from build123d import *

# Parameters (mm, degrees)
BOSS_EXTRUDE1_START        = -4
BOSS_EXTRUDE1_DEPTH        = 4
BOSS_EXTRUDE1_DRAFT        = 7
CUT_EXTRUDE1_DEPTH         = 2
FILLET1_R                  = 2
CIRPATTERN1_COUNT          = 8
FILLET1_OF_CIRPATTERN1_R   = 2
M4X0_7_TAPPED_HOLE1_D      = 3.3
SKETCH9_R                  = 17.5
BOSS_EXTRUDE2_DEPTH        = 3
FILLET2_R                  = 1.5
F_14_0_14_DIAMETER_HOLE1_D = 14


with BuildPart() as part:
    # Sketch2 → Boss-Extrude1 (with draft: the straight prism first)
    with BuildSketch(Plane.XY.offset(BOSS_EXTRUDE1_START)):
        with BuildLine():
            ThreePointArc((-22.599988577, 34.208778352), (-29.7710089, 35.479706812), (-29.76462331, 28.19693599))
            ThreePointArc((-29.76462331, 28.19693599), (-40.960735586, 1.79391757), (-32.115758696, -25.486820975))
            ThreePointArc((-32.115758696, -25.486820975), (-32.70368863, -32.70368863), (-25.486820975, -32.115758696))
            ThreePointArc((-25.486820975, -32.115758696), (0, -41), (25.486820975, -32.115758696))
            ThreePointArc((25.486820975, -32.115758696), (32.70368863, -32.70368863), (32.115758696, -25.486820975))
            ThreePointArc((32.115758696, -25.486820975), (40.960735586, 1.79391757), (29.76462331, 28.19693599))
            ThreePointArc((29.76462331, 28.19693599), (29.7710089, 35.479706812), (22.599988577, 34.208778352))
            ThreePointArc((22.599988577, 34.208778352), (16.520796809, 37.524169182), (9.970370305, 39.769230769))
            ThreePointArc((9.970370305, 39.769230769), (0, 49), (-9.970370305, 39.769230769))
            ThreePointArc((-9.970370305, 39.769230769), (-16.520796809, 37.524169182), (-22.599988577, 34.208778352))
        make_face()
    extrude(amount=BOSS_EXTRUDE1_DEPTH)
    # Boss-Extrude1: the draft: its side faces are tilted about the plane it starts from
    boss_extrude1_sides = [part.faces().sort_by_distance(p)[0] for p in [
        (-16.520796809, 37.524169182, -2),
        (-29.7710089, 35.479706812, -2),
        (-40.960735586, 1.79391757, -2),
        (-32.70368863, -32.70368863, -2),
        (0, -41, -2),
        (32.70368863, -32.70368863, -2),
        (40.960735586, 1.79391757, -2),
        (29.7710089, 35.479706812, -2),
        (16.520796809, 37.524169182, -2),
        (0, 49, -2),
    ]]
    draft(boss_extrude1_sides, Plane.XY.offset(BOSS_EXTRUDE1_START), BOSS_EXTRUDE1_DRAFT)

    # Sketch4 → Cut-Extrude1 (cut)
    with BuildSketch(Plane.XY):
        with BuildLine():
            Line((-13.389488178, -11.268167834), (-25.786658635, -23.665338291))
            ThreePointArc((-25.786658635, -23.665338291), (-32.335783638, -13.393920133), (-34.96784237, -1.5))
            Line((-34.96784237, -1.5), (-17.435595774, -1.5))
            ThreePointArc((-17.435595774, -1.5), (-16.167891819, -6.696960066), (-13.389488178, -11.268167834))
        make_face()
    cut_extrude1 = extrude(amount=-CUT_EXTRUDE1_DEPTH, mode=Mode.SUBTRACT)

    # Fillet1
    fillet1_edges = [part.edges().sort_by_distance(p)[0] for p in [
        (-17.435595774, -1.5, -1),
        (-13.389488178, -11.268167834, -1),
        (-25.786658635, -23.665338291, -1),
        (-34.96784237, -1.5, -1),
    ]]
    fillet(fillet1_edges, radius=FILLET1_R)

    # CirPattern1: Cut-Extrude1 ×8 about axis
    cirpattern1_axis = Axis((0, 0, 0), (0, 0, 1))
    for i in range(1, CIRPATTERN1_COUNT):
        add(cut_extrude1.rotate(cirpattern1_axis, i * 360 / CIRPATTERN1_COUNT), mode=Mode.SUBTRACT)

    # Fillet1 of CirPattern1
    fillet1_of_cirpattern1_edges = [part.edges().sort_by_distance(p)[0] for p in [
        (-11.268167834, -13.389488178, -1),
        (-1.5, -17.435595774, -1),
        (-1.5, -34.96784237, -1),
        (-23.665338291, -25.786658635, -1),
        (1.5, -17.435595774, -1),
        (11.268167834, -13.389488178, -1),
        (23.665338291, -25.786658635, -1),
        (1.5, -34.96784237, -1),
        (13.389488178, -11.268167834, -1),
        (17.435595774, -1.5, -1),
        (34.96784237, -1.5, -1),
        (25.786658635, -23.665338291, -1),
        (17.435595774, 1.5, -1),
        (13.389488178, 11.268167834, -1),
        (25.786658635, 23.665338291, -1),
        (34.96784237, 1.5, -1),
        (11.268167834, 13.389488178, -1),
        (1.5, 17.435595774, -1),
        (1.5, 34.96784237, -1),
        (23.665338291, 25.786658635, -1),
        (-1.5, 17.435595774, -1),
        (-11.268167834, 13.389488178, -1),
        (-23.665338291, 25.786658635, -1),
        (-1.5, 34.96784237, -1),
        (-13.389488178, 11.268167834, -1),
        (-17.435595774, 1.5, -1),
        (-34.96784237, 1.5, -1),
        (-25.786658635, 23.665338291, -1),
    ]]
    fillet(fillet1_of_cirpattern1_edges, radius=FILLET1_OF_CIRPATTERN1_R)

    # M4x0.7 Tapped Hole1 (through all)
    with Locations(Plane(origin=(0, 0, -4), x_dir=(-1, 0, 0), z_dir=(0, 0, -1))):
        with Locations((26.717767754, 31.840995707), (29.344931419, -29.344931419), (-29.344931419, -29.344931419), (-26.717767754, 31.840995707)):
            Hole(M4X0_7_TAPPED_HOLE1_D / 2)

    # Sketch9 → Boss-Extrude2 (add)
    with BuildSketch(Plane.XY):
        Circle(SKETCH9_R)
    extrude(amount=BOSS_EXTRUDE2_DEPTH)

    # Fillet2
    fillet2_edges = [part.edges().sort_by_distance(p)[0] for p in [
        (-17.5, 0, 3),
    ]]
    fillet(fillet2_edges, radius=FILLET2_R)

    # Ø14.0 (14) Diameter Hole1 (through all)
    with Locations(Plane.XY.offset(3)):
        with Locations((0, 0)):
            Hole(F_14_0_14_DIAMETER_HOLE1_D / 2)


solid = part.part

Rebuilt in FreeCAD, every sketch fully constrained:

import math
import FreeCAD as App
import Part
import Sketcher

V = App.Vector
Q = App.Units.Quantity


def edges_at(feature, points):
    """Names of the edges that pass closest to the given points."""
    edges = feature.Shape.Edges
    near = lambda p: min(range(len(edges)), key=lambda i: edges[i].distToShape(Part.Vertex(*p))[0])
    return sorted({f"Edge{near(p) + 1}" for p in points})


def faces_at(feature, points):
    """Names of the faces that lie closest to the given points."""
    faces = feature.Shape.Faces
    near = lambda p: min(range(len(faces)), key=lambda i: faces[i].distToShape(Part.Vertex(*p))[0])
    return sorted({f"Face{near(p) + 1}" for p in points})

doc = App.newDocument("Part")
body = doc.addObject("PartDesign::Body", "Body")

# Sketch on XY plane
sketch1 = doc.addObject("Sketcher::SketchObject", "Sketch")
body.addObject(sketch1)
sketch1.AttachmentSupport = (doc.XY_Plane, [""])
sketch1.MapMode = "FlatFace"
sketch1.AttachmentOffset = App.Placement(V(0, 0, -4), App.Rotation())
sketch1.addGeometry([
    Part.ArcOfCircle(Part.Circle(V(-26.7, 31.8, 0), V(0, 0, 1), 4.8), math.radians(30), math.radians(230)),  # 0
    Part.ArcOfCircle(Part.Circle(V(0, 0, 0), V(0, 0, 1), 41), math.radians(137), math.radians(218)),  # 1
    Part.ArcOfCircle(Part.Circle(V(-29.3, -29.3, 0), V(0, 0, 1), 4.8), math.radians(126), math.radians(324)),  # 2
    Part.ArcOfCircle(Part.Circle(V(0, 0, 0), V(0, 0, 1), 41), math.radians(-128), math.radians(-52)),  # 3
    Part.ArcOfCircle(Part.Circle(V(29.3, -29.3, 0), V(0, 0, 1), 4.8), math.radians(-144), math.radians(54)),  # 4
    Part.ArcOfCircle(Part.Circle(V(0, 0, 0), V(0, 0, 1), 41), math.radians(-38), math.radians(43)),  # 5
    Part.ArcOfCircle(Part.Circle(V(26.7, 31.8, 0), V(0, 0, 1), 4.8), math.radians(-50), math.radians(150)),  # 6
    Part.ArcOfCircle(Part.Circle(V(0, 0, 0), V(0, 0, 1), 41), math.radians(56.55), math.radians(75.93)),  # 7
    Part.ArcOfCircle(Part.Circle(V(0, 39, 0), V(0, 0, 1), 10), math.radians(4), math.radians(176)),  # 8
    Part.ArcOfCircle(Part.Circle(V(0, 0, 0), V(0, 0, 1), 41), math.radians(104.07), math.radians(123.45)),  # 9
], False)
sketch1.addConstraint([
    Sketcher.Constraint("Coincident", 0, 2, 1, 1),
    Sketcher.Constraint("Coincident", 1, 2, 2, 1),
    Sketcher.Constraint("Coincident", 2, 2, 3, 1),
    Sketcher.Constraint("Coincident", 3, 2, 4, 1),
    Sketcher.Constraint("Coincident", 4, 2, 5, 1),
    Sketcher.Constraint("Coincident", 5, 2, 6, 1),
    Sketcher.Constraint("Coincident", 6, 2, 7, 1),
    Sketcher.Constraint("Coincident", 7, 2, 8, 1),
    Sketcher.Constraint("Coincident", 8, 2, 9, 1),
    Sketcher.Constraint("Coincident", 9, 2, 0, 1),
    Sketcher.Constraint("Coincident", 1, 3, -1, 1),
    Sketcher.Constraint("Coincident", 3, 3, -1, 1),
    Sketcher.Constraint("Coincident", 5, 3, -1, 1),
    Sketcher.Constraint("Coincident", 7, 3, -1, 1),
    Sketcher.Constraint("Coincident", 9, 3, -1, 1),
    Sketcher.Constraint("Equal", 0, 2),
    Sketcher.Constraint("Equal", 1, 3),
    Sketcher.Constraint("Equal", 2, 4),
    Sketcher.Constraint("Equal", 3, 5),
    Sketcher.Constraint("Equal", 4, 6),
    Sketcher.Constraint("Equal", 5, 7),
    Sketcher.Constraint("Equal", 7, 9),
    Sketcher.Constraint("Symmetric", 2, 3, 4, 3, -2),
    Sketcher.Constraint("Symmetric", 0, 3, 6, 3, -2),
    Sketcher.Constraint("PointOnObject", 8, 3, -2),
    Sketcher.Constraint("Radius", 1, 41.0),
    Sketcher.Constraint("Radius", 8, 10.0),
    Sketcher.Constraint("Radius", 0, 4.75),
    Sketcher.Constraint("DistanceY", -1, 1, 8, 3, 39.0),
    Sketcher.Constraint("DistanceX", 0, 3, 4, 3, 56.062699),
    Sketcher.Constraint("DistanceX", 2, 3, -1, 1, 29.344931),
    Sketcher.Constraint("DistanceY", 2, 3, -1, 1, 29.344931),
    Sketcher.Constraint("DistanceX", -1, 1, 6, 2, 22.599989),
])
pad1 = doc.addObject("PartDesign::Pad", "Pad")
body.addObject(pad1)
pad1.Profile = sketch1
pad1.Length = 4
doc.recompute()

datumplane = doc.addObject("PartDesign::Plane", "DatumPlane")
body.addObject(datumplane)
datumplane.AttachmentSupport = (doc.XY_Plane, [""])
datumplane.MapMode = "FlatFace"
datumplane.AttachmentOffset = App.Placement(V(0, 0, -4), App.Rotation())
draft = doc.addObject("PartDesign::Draft", "Draft")
body.addObject(draft)
draft.Base = (pad1, faces_at(pad1, [
    (-16.521, 37.524, -2),
    (-29.771, 35.48, -2),
    (-40.961, 1.794, -2),
    (-32.704, -32.704, -2),
    (0, -41, -2),
    (32.704, -32.704, -2),
    (40.961, 1.794, -2),
    (29.771, 35.48, -2),
    (16.521, 37.524, -2),
    (0, 49, -2),
]))
draft.NeutralPlane = (datumplane, [""])
draft.Angle = 7
draft.Reversed = False

# Sketch on XY plane
sketch2 = doc.addObject("Sketcher::SketchObject", "Sketch001")
body.addObject(sketch2)
sketch2.AttachmentSupport = (doc.XY_Plane, [""])
sketch2.MapMode = "FlatFace"
sketch2.addGeometry([
    Part.LineSegment(V(-26, -24, 0), V(-13, -11, 0)),
    Part.ArcOfCircle(Part.Circle(V(0, 0, 0), V(0, 0, 1), 18), math.radians(-175), math.radians(-140)),
    Part.LineSegment(V(-17, -2, 0), V(-35, -2, 0)),
    Part.ArcOfCircle(Part.Circle(V(0, 0, 0), V(0, 0, 1), 35), math.radians(-178), math.radians(-137)),
], False)
sketch2.addConstraint([
    Sketcher.Constraint("Coincident", 0, 2, 1, 2),
    Sketcher.Constraint("Coincident", 1, 1, 2, 1),
    Sketcher.Constraint("Coincident", 2, 2, 3, 1),
    Sketcher.Constraint("Coincident", 3, 2, 0, 1),
    Sketcher.Constraint("Horizontal", 2),
    Sketcher.Constraint("Coincident", 1, 3, -1, 1),
    Sketcher.Constraint("Coincident", 3, 3, -1, 1),
    Sketcher.Constraint("Radius", 3, 35.0),
    Sketcher.Constraint("Radius", 1, 17.5),
    Sketcher.Constraint("Angle", 0, Q("45 deg")),
    Sketcher.Constraint("DistanceY", 1, 1, -1, 1, 1.5),
    Sketcher.Constraint("DistanceX", 0, 2, -1, 1, 13.389488),
])
pocket1 = doc.addObject("PartDesign::Pocket", "Pocket")
body.addObject(pocket1)
pocket1.Profile = sketch2
pocket1.Length = 2
doc.recompute()

fillet = doc.addObject("PartDesign::Fillet", "Fillet")
body.addObject(fillet)
fillet.Base = (pocket1, edges_at(pocket1, [
    (-17.436, -1.5, -1),
    (-13.389, -11.268, -1),
    (-25.787, -23.665, -1),
    (-34.968, -1.5, -1),
]))
fillet.Radius = 2
doc.recompute()

polarpattern = doc.addObject("PartDesign::PolarPattern", "PolarPattern")
body.addObject(polarpattern)
polarpattern.Originals = [pocket1]
polarpattern.Axis = (doc.Z_Axis, [""])
polarpattern.Angle = 360
polarpattern.Occurrences = 8
body.Tip = polarpattern
doc.recompute()

fillet2 = doc.addObject("PartDesign::Fillet", "Fillet001")
body.addObject(fillet2)
fillet2.Base = (polarpattern, edges_at(polarpattern, [
    (-11.268, -13.389, -1),
    (-1.5, -17.436, -1),
    (-1.5, -34.968, -1),
    (-23.665, -25.787, -1),
    (1.5, -17.436, -1),
    (11.268, -13.389, -1),
    (23.665, -25.787, -1),
    (1.5, -34.968, -1),
    (13.389, -11.268, -1),
    (17.436, -1.5, -1),
    (34.968, -1.5, -1),
    (25.787, -23.665, -1),
    (17.436, 1.5, -1),
    (13.389, 11.268, -1),
    (25.787, 23.665, -1),
    (34.968, 1.5, -1),
    (11.268, 13.389, -1),
    (1.5, 17.436, -1),
    (1.5, 34.968, -1),
    (23.665, 25.787, -1),
    (-1.5, 17.436, -1),
    (-11.268, 13.389, -1),
    (-23.665, 25.787, -1),
    (-1.5, 34.968, -1),
    (-13.389, 11.268, -1),
    (-17.436, 1.5, -1),
    (-34.968, 1.5, -1),
    (-25.787, 23.665, -1),
]))
fillet2.Radius = 2

# Sketch on XY plane
sketch3 = doc.addObject("Sketcher::SketchObject", "Sketch002")
body.addObject(sketch3)
sketch3.AttachmentSupport = (doc.XY_Plane, [""])
sketch3.MapMode = "FlatFace"
sketch3.AttachmentOffset = App.Placement(V(0, 0, -4), App.Rotation())
sketch3.addGeometry([
    Part.Circle(V(-26.7, 31.8, 0), V(0, 0, 1), 1.6),
    Part.Circle(V(-29.3, -29.3, 0), V(0, 0, 1), 1.6),
    Part.Circle(V(29.3, -29.3, 0), V(0, 0, 1), 1.6),
    Part.Circle(V(26.7, 31.8, 0), V(0, 0, 1), 1.6),
], False)
sketch3.addConstraint([
    Sketcher.Constraint("Equal", 0, 1),
    Sketcher.Constraint("Equal", 1, 2),
    Sketcher.Constraint("Equal", 2, 3),
    Sketcher.Constraint("Symmetric", 1, 3, 2, 3, -2),
    Sketcher.Constraint("Symmetric", 0, 3, 3, 3, -2),
    Sketcher.Constraint("Diameter", 0, 3.3),
    Sketcher.Constraint("DistanceX", 0, 3, 2, 3, 56.062699),
    Sketcher.Constraint("DistanceX", 1, 3, -1, 1, 29.344931),
    Sketcher.Constraint("DistanceY", 1, 3, -1, 1, 29.344931),
    Sketcher.Constraint("DistanceY", -1, 1, 0, 3, 31.840996),
])
doc.recompute()
hole = doc.addObject("PartDesign::Hole", "Hole")
body.addObject(hole)
hole.Profile = sketch3
hole.ThreadType = "None"
hole.Diameter = 3.3
hole.DepthType = "ThroughAll"
hole.Reversed = True

# Sketch on XY plane
sketch4 = doc.addObject("Sketcher::SketchObject", "Sketch003")
body.addObject(sketch4)
sketch4.AttachmentSupport = (doc.XY_Plane, [""])
sketch4.MapMode = "FlatFace"
sketch4.addGeometry(Part.Circle(V(0, 0, 0), V(0, 0, 1), 18), False)
sketch4.addConstraint([
    Sketcher.Constraint("Coincident", 0, 3, -1, 1),
    Sketcher.Constraint("Diameter", 0, 35.0),
])
pad2 = doc.addObject("PartDesign::Pad", "Pad001")
body.addObject(pad2)
pad2.Profile = sketch4
pad2.Length = 3
doc.recompute()

fillet3 = doc.addObject("PartDesign::Fillet", "Fillet002")
body.addObject(fillet3)
fillet3.Base = (pad2, edges_at(pad2, [(-17.5, 0, 3)]))
fillet3.Radius = 1.5

# Sketch on XY plane
sketch5 = doc.addObject("Sketcher::SketchObject", "Sketch004")
body.addObject(sketch5)
sketch5.AttachmentSupport = (doc.XY_Plane, [""])
sketch5.MapMode = "FlatFace"
sketch5.AttachmentOffset = App.Placement(V(0, 0, 3), App.Rotation())
sketch5.addGeometry(Part.Circle(V(0, 0, 0), V(0, 0, 1), 7), False)
sketch5.addConstraint([
    Sketcher.Constraint("Coincident", 0, 3, -1, 1),
    Sketcher.Constraint("Diameter", 0, 14.0),
])
doc.recompute()
hole2 = doc.addObject("PartDesign::Hole", "Hole001")
body.addObject(hole2)
hole2.Profile = sketch5
hole2.ThreadType = "None"
hole2.Diameter = 14
hole2.DepthType = "ThroughAll"

doc.recompute()
